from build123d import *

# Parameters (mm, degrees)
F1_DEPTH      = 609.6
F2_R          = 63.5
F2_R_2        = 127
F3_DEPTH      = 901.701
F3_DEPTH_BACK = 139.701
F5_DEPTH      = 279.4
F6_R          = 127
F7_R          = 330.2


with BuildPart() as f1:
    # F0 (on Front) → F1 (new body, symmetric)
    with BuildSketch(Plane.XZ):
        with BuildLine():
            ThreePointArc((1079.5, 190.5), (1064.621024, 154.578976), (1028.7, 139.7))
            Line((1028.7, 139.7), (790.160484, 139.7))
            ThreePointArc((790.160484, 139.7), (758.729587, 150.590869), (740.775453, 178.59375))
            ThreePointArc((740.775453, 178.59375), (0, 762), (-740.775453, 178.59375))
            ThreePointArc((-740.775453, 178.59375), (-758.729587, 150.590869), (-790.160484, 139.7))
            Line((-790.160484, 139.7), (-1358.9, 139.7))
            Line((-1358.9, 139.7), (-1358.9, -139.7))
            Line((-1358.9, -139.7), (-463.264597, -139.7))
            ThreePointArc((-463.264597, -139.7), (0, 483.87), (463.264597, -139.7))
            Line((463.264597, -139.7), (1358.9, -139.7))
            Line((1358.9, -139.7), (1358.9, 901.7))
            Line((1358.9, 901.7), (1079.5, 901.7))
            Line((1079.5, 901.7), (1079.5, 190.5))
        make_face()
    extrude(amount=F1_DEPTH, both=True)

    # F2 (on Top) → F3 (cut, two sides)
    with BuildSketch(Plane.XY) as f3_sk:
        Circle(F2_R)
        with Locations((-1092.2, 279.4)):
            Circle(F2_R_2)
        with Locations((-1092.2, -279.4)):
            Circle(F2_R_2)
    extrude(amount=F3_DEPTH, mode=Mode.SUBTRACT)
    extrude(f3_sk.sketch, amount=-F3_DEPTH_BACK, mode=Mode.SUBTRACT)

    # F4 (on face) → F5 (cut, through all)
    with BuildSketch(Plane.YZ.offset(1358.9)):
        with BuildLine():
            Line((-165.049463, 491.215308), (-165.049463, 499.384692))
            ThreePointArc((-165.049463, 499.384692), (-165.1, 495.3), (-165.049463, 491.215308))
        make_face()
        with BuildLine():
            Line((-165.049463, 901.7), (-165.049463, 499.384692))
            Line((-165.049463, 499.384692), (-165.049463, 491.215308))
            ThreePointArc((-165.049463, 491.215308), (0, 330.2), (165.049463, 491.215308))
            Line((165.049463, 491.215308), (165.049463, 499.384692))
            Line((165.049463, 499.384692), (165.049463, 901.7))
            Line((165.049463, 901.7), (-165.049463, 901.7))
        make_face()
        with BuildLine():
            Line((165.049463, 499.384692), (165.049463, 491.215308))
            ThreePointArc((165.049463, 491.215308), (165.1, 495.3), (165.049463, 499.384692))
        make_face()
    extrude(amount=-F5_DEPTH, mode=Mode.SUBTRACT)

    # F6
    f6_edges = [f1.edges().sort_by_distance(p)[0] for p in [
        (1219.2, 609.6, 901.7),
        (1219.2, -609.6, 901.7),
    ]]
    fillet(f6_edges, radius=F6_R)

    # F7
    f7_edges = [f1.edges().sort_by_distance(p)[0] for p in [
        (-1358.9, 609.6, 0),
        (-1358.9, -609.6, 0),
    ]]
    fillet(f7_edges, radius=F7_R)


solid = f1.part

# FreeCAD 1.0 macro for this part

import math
import FreeCAD as App
import Part
import Sketcher
from FreeCAD import Vector
Q = App.Units.Quantity


def edges_at(feature, points):
    """Names of the edges that pass closest to the given points."""
    edges = feature.Shape.Edges
    near = lambda p: min(range(len(edges)), key=lambda i: edges[i].distToShape(Part.Vertex(*p))[0])
    return sorted({f"Edge{near(p) + 1}" for p in points})

doc = App.newDocument("Part")
body = doc.addObject("PartDesign::Body", "Body")

# Sketch on XZ plane
sketch1 = doc.addObject("Sketcher::SketchObject", "Sketch")
body.addObject(sketch1)
sketch1.AttachmentSupport = (doc.XZ_Plane, [""])
sketch1.MapMode = "FlatFace"
sketch1.addGeometry(Part.ArcOfCircle(Part.Circle(Vector(1029, 191, 0), Vector(0, 0, 1), 51), math.radians(-90), math.radians(0)), False)
sketch1.addGeometry(Part.LineSegment(Vector(1029, 140, 0), Vector(790, 140, 0)), False)
sketch1.addGeometry(Part.ArcOfCircle(Part.Circle(Vector(790, 191, 0), Vector(0, 0, 1), 51), math.radians(-166), math.radians(-90)), False)
sketch1.addGeometry(Part.ArcOfCircle(Part.Circle(Vector(0, 0, 0), Vector(0, 0, 1), 762), math.radians(14), math.radians(166)), False)
sketch1.addGeometry(Part.ArcOfCircle(Part.Circle(Vector(-790, 191, 0), Vector(0, 0, 1), 51), math.radians(-90), math.radians(-14)), False)
sketch1.addGeometry(Part.LineSegment(Vector(-790, 140, 0), Vector(-1359, 140, 0)), False)
sketch1.addGeometry(Part.LineSegment(Vector(-1359, 140, 0), Vector(-1359, -140, 0)), False)
sketch1.addGeometry(Part.LineSegment(Vector(-1359, -140, 0), Vector(-463, -140, 0)), False)
sketch1.addGeometry(Part.ArcOfCircle(Part.Circle(Vector(0, 0, 0), Vector(0, 0, 1), 484), math.radians(-17), math.radians(197)), False)
sketch1.addGeometry(Part.LineSegment(Vector(463, -140, 0), Vector(1359, -140, 0)), False)
sketch1.addGeometry(Part.LineSegment(Vector(1359, -140, 0), Vector(1359, 902, 0)), False)
sketch1.addGeometry(Part.LineSegment(Vector(1359, 902, 0), Vector(1080, 902, 0)), False)
sketch1.addGeometry(Part.LineSegment(Vector(1080, 902, 0), Vector(1080, 190, 0)), False)
sketch1.addConstraint(Sketcher.Constraint("Tangent", 0, 1, 1, 1))
sketch1.addConstraint(Sketcher.Constraint("Tangent", 1, 2, 2, 2))
sketch1.addConstraint(Sketcher.Constraint("Tangent", 2, 1, 3, 1))
sketch1.addConstraint(Sketcher.Constraint("Tangent", 3, 2, 4, 2))
sketch1.addConstraint(Sketcher.Constraint("Tangent", 4, 1, 5, 1))
sketch1.addConstraint(Sketcher.Constraint("Coincident", 5, 2, 6, 1))
sketch1.addConstraint(Sketcher.Constraint("Coincident", 6, 2, 7, 1))
sketch1.addConstraint(Sketcher.Constraint("Coincident", 7, 2, 8, 2))
sketch1.addConstraint(Sketcher.Constraint("Coincident", 8, 1, 9, 1))
sketch1.addConstraint(Sketcher.Constraint("Coincident", 9, 2, 10, 1))
sketch1.addConstraint(Sketcher.Constraint("Coincident", 10, 2, 11, 1))
sketch1.addConstraint(Sketcher.Constraint("Coincident", 11, 2, 12, 1))
sketch1.addConstraint(Sketcher.Constraint("Tangent", 12, 2, 0, 2))
sketch1.addConstraint(Sketcher.Constraint("Horizontal", 1))
sketch1.addConstraint(Sketcher.Constraint("Horizontal", 5))
sketch1.addConstraint(Sketcher.Constraint("Vertical", 6))
sketch1.addConstraint(Sketcher.Constraint("Horizontal", 7))
sketch1.addConstraint(Sketcher.Constraint("Horizontal", 9))
sketch1.addConstraint(Sketcher.Constraint("Vertical", 10))
sketch1.addConstraint(Sketcher.Constraint("Horizontal", 11))
sketch1.addConstraint(Sketcher.Constraint("Vertical", 12))
sketch1.addConstraint(Sketcher.Constraint("Coincident", 3, 3, -1, 1))
sketch1.addConstraint(Sketcher.Constraint("Coincident", 8, 3, -1, 1))
sketch1.addConstraint(Sketcher.Constraint("Equal", 0, 2))
sketch1.addConstraint(Sketcher.Constraint("Equal", 2, 4))
sketch1.addConstraint(Sketcher.Constraint("Symmetric", 5, 2, 9, 2, -1, 1))
sketch1.addConstraint(Sketcher.Constraint("Horizontal", 2, 3, 4, 3))
sketch1.addConstraint(Sketcher.Constraint("Equal", 7, 9))
sketch1.addConstraint(Sketcher.Constraint("Equal", 11, 6))
sketch1.addConstraint(Sketcher.Constraint("Radius", 0, Q("2.0000001 in")))
sketch1.addConstraint(Sketcher.Constraint("Radius", 3, Q("30 in")))
sketch1.addConstraint(Sketcher.Constraint("DistanceX", 11, 2, 11, 1, Q("11 in")))
sketch1.addConstraint(Sketcher.Constraint("DistanceY", 10, 1, 10, 2, Q("41 in")))
sketch1.addConstraint(Sketcher.Constraint("Radius", 8, Q("19.05 in")))
sketch1.addConstraint(Sketcher.Constraint("DistanceX", -1, 1, 0, 3, Q("40.4999999 in")))
pad1 = doc.addObject("PartDesign::Pad", "Pad")
body.addObject(pad1)
pad1.Profile = sketch1
pad1.Length = Q("48 in")
pad1.Midplane = True

# Sketch on XY plane
sketch2 = doc.addObject("Sketcher::SketchObject", "Sketch001")
body.addObject(sketch2)
sketch2.AttachmentSupport = (doc.XY_Plane, [""])
sketch2.MapMode = "FlatFace"
sketch2.addGeometry(Part.Circle(Vector(0, 0, 0), Vector(0, 0, 1), 64), False)
sketch2.addGeometry(Part.Circle(Vector(-1092, 279, 0), Vector(0, 0, 1), 127), False)
sketch2.addGeometry(Part.Circle(Vector(-1092, -279, 0), Vector(0, 0, 1), 127), False)
sketch2.addConstraint(Sketcher.Constraint("Coincident", 0, 3, -1, 1))
sketch2.addConstraint(Sketcher.Constraint("Equal", 1, 2))
sketch2.addConstraint(Sketcher.Constraint("Symmetric", 1, 3, 2, 3, -1))
sketch2.addConstraint(Sketcher.Constraint("Diameter", 0, Q("5 in")))
sketch2.addConstraint(Sketcher.Constraint("Diameter", 1, Q("10 in")))
sketch2.addConstraint(Sketcher.Constraint("DistanceX", 1, 3, -1, 1, Q("43 in")))
sketch2.addConstraint(Sketcher.Constraint("DistanceY", -1, 1, 1, 3, Q("11 in")))
pocket1 = doc.addObject("PartDesign::Pocket", "Pocket")
body.addObject(pocket1)
pocket1.Profile = sketch2
pocket1.Type = "ThroughAll"
pocket1.Midplane = True

# Sketch on YZ plane
sketch3 = doc.addObject("Sketcher::SketchObject", "Sketch002")
body.addObject(sketch3)
sketch3.AttachmentSupport = (doc.YZ_Plane, [""])
sketch3.MapMode = "FlatFace"
sketch3.AttachmentOffset = App.Placement(Vector(0, 0, 53.5 * 25.4), App.Rotation())
sketch3.addGeometry(Part.ArcOfCircle(Part.Circle(Vector(-0.000541, 495.3, 0), Vector(0, 0, 1), 165.099459), math.radians(178.582312), math.radians(181.417688)), False)
sketch3.addGeometry(Part.ArcOfCircle(Part.Circle(Vector(0, 495.3, 0), Vector(0, 0, 1), 165.1), math.radians(-178.582317), math.radians(-1.417683)), False)
sketch3.addGeometry(Part.ArcOfCircle(Part.Circle(Vector(0.000541, 495.3, 0), Vector(0, 0, 1), 165.099459), math.radians(-1.417688), math.radians(1.417688)), False)
sketch3.addGeometry(Part.LineSegment(Vector(165.049463, 499.384692, 0), Vector(165.049463, 901.7, 0)), False)
sketch3.addGeometry(Part.LineSegment(Vector(165.049463, 901.7, 0), Vector(-165.049463, 901.7, 0)), False)
sketch3.addGeometry(Part.LineSegment(Vector(-165.049463, 901.7, 0), Vector(-165.049463, 499.384692, 0)), False)
sketch3.addConstraint(Sketcher.Constraint("Coincident", 0, 2, 1, 1))
sketch3.addConstraint(Sketcher.Constraint("Coincident", 1, 2, 2, 1))
sketch3.addConstraint(Sketcher.Constraint("Coincident", 2, 2, 3, 1))
sketch3.addConstraint(Sketcher.Constraint("Coincident", 3, 2, 4, 1))
sketch3.addConstraint(Sketcher.Constraint("Coincident", 4, 2, 5, 1))
sketch3.addConstraint(Sketcher.Constraint("Coincident", 5, 2, 0, 1))
sketch3.addConstraint(Sketcher.Constraint("Vertical", 3))
sketch3.addConstraint(Sketcher.Constraint("Horizontal", 4))
sketch3.addConstraint(Sketcher.Constraint("Vertical", 5))
sketch3.addConstraint(Sketcher.Constraint("PointOnObject", 1, 3, -2))
sketch3.addConstraint(Sketcher.Constraint("Radius", 1, Q("6.5 in")))
sketch3.addConstraint(Sketcher.Constraint("DistanceY", 2, 3, 3, 2, Q("16 in")))
sketch3.addConstraint(Sketcher.Constraint("DistanceY", 1, 3, 3, 2, Q("16 in")))
sketch3.addConstraint(Sketcher.Constraint("DistanceY", 0, 3, 3, 2, Q("16 in")))
sketch3.addConstraint(Sketcher.Constraint("DistanceY", -1, 1, 0, 3, Q("19.5 in")))
sketch3.addConstraint(Sketcher.Constraint("Radius", 0, Q("165.099459 mm")))
sketch3.addConstraint(Sketcher.Constraint("Radius", 2, Q("165.099459 mm")))
sketch3.addConstraint(Sketcher.Constraint("DistanceY", 3, 1, 3, 2, Q("402.315308 mm")))
sketch3.addConstraint(Sketcher.Constraint("DistanceY", 5, 2, 5, 1, Q("402.315308 mm")))
sketch3.addConstraint(Sketcher.Constraint("DistanceY", -1, 1, 0, 2, Q("491.215308 mm")))
sketch3.addConstraint(Sketcher.Constraint("DistanceY", -1, 1, 1, 2, Q("491.215308 mm")))
pocket2 = doc.addObject("PartDesign::Pocket", "Pocket001")
body.addObject(pocket2)
pocket2.Profile = sketch3
pocket2.Length = Q("11 in")
doc.recompute()

fillet = doc.addObject("PartDesign::Fillet", "Fillet")
body.addObject(fillet)
fillet.Base = (pocket2, edges_at(pocket2, [(1219.2, 609.6, 901.7), (1219.2, -609.6, 901.7)]))
fillet.Radius = Q("5 in")
doc.recompute()

fillet2 = doc.addObject("PartDesign::Fillet", "Fillet001")
body.addObject(fillet2)
fillet2.Base = (fillet, edges_at(fillet, [(-1358.9, 609.6, 0), (-1358.9, -609.6, 0)]))
fillet2.Radius = Q("13 in")

doc.recompute()
